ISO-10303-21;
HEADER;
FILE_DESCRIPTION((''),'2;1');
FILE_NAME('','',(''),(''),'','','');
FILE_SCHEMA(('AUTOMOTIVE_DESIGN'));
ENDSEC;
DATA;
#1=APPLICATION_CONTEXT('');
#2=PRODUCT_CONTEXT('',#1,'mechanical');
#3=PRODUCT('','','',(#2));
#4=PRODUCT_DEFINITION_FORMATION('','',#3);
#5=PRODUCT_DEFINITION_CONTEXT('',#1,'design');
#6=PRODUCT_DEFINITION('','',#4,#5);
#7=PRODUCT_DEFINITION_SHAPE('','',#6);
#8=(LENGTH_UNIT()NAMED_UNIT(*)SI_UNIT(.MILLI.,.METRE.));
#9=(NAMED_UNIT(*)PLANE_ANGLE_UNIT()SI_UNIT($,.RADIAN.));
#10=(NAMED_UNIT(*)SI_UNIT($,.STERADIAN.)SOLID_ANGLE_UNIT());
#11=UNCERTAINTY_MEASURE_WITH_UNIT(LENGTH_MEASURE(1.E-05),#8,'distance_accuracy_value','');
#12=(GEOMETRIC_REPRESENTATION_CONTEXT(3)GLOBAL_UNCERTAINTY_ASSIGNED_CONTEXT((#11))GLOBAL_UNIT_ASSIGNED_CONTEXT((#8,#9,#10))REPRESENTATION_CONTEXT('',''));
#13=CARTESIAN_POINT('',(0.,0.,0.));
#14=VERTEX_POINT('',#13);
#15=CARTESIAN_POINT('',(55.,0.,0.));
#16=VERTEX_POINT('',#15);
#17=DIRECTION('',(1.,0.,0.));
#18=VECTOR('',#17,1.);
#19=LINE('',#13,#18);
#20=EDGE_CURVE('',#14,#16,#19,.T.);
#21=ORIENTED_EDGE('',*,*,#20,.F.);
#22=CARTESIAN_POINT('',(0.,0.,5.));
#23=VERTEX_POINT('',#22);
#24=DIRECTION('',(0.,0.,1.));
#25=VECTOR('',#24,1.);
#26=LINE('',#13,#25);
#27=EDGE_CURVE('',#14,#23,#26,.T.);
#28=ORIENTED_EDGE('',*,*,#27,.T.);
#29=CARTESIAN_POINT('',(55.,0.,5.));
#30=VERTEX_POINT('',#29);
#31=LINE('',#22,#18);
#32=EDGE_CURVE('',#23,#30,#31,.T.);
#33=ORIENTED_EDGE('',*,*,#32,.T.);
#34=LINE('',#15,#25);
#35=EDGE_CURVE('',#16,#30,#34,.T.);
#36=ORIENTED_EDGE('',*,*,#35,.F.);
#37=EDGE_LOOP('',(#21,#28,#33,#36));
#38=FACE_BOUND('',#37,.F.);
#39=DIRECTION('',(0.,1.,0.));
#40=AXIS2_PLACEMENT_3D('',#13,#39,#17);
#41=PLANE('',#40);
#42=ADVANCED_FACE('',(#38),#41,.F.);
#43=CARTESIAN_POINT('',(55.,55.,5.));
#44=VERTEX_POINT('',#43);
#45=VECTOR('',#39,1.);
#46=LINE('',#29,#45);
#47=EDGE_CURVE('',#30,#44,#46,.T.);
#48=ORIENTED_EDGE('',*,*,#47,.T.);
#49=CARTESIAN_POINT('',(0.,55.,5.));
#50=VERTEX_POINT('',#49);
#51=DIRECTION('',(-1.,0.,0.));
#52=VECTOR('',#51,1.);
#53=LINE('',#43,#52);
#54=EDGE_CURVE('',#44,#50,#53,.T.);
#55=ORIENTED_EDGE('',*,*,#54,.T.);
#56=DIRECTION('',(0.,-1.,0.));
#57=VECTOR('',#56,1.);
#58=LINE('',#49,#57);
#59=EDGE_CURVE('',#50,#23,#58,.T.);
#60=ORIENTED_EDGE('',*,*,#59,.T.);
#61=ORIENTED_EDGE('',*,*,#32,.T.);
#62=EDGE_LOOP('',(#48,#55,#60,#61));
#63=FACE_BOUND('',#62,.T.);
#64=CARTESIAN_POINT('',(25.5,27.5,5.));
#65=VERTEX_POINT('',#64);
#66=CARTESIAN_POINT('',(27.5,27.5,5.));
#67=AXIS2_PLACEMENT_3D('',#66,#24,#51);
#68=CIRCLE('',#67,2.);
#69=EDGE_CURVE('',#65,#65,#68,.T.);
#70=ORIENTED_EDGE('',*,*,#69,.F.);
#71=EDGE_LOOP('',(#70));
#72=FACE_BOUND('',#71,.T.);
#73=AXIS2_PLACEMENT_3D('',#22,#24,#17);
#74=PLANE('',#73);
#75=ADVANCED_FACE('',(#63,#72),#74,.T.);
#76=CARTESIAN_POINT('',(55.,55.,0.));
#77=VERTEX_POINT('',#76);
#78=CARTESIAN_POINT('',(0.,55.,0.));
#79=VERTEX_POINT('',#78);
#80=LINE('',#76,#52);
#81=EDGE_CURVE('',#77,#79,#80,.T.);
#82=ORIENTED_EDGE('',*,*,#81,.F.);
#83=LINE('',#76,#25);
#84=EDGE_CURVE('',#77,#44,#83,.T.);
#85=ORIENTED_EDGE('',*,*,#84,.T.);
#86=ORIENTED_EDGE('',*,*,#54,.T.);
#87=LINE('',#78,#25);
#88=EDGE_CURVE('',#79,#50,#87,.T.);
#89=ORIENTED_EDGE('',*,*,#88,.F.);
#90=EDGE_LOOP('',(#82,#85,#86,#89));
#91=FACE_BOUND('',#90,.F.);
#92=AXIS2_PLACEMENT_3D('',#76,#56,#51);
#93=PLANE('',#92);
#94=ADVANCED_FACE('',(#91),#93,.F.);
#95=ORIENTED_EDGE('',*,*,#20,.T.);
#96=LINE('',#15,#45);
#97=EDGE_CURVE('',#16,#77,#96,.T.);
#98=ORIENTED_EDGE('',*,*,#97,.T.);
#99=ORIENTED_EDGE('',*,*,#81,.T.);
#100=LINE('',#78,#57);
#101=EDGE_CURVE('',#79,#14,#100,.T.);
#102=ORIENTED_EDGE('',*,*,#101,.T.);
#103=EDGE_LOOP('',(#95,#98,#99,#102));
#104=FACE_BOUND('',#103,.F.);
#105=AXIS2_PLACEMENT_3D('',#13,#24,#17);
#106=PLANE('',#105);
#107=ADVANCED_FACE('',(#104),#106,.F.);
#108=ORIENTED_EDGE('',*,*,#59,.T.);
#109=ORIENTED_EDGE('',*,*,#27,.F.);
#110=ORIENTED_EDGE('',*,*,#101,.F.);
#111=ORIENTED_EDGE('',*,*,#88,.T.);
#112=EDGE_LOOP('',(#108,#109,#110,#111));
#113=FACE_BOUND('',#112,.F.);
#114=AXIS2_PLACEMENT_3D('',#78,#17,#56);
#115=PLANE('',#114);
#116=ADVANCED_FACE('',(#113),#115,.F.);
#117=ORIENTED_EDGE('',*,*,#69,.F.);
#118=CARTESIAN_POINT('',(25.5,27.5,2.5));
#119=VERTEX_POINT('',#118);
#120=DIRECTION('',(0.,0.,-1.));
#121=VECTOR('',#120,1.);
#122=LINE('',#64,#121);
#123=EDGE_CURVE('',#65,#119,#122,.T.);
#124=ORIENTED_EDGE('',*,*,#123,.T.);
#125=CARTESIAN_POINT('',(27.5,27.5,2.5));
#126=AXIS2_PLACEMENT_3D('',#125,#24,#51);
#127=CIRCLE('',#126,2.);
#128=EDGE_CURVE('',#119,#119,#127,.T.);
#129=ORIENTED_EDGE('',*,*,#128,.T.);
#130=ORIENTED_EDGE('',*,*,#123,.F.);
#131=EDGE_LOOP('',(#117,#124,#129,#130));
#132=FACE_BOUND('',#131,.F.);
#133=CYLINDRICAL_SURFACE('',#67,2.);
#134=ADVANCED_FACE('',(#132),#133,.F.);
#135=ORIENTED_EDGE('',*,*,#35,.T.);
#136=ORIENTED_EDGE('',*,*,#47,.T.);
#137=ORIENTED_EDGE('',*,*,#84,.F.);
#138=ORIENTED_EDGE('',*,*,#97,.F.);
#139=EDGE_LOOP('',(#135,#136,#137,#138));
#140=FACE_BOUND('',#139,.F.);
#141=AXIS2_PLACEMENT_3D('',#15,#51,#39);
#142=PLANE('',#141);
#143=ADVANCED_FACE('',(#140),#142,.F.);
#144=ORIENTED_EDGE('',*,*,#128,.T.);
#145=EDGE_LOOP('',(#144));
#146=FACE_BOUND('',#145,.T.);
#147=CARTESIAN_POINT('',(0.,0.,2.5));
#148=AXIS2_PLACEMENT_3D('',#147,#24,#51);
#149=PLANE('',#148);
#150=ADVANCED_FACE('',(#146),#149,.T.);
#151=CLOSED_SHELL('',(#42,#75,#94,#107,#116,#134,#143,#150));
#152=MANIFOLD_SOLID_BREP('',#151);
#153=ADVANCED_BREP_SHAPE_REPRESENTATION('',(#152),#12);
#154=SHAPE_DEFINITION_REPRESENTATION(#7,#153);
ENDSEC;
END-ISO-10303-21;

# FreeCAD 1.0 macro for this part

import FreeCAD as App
import Part
import Sketcher
from FreeCAD import Vector


def add_polygon(sketch, points):
    """Adds a closed chain of lines whose ends are joined by coincident constraints."""
    first, n = sketch.GeometryCount, len(points)
    for a, b in zip(points, points[1:] + points[:1]):
        sketch.addGeometry(Part.LineSegment(App.Vector(*a, 0), App.Vector(*b, 0)), False)
    for i in range(n):
        sketch.addConstraint(Sketcher.Constraint("Coincident", first + i, 2, first + (i + 1) % n, 1))

doc = App.newDocument("Part")
body = doc.addObject("PartDesign::Body", "Body")

# Sketch on XY plane
sketch1 = body.newObject("Sketcher::SketchObject", "Sketch")
sketch1.AttachmentSupport = (doc.getObject("XY_Plane"), [""])
sketch1.MapMode = "FlatFace"
add_polygon(sketch1, [(0, 55), (0, 0), (55, 0), (55, 55)])  # lines 0-3
sketch1.addConstraint(Sketcher.Constraint("Vertical", 0))
sketch1.addConstraint(Sketcher.Constraint("Horizontal", 1))
sketch1.addConstraint(Sketcher.Constraint("Vertical", 2))
sketch1.addConstraint(Sketcher.Constraint("Horizontal", 3))
sketch1.addConstraint(Sketcher.Constraint("Coincident", 0, 2, -1, 1))
sketch1.addConstraint(Sketcher.Constraint("Equal", 3, 0))
sketch1.addConstraint(Sketcher.Constraint("DistanceX", 1, 1, 1, 2, 55.0))
pad1 = body.newObject("PartDesign::Pad", "Pad")
pad1.Profile = sketch1
pad1.Length = 5

# Sketch on XY plane
sketch2 = body.newObject("Sketcher::SketchObject", "Sketch001")
sketch2.AttachmentSupport = (doc.getObject("XY_Plane"), [""])
sketch2.MapMode = "FlatFace"
sketch2.AttachmentOffset = App.Placement(Vector(0, 0, 5), App.Rotation())
sketch2.addGeometry(Part.Circle(Vector(27.5, 27.5, 0), Vector(0, 0, 1), 2), False)
sketch2.addConstraint(Sketcher.Constraint("Diameter", 0, 4.0))
sketch2.addConstraint(Sketcher.Constraint("DistanceX", -1, 1, 0, 3, 27.5))
sketch2.addConstraint(Sketcher.Constraint("DistanceY", -1, 1, 0, 3, 27.5))
pocket1 = body.newObject("PartDesign::Pocket", "Pocket")
pocket1.Profile = sketch2
pocket1.Length = 2.5

doc.recompute()
